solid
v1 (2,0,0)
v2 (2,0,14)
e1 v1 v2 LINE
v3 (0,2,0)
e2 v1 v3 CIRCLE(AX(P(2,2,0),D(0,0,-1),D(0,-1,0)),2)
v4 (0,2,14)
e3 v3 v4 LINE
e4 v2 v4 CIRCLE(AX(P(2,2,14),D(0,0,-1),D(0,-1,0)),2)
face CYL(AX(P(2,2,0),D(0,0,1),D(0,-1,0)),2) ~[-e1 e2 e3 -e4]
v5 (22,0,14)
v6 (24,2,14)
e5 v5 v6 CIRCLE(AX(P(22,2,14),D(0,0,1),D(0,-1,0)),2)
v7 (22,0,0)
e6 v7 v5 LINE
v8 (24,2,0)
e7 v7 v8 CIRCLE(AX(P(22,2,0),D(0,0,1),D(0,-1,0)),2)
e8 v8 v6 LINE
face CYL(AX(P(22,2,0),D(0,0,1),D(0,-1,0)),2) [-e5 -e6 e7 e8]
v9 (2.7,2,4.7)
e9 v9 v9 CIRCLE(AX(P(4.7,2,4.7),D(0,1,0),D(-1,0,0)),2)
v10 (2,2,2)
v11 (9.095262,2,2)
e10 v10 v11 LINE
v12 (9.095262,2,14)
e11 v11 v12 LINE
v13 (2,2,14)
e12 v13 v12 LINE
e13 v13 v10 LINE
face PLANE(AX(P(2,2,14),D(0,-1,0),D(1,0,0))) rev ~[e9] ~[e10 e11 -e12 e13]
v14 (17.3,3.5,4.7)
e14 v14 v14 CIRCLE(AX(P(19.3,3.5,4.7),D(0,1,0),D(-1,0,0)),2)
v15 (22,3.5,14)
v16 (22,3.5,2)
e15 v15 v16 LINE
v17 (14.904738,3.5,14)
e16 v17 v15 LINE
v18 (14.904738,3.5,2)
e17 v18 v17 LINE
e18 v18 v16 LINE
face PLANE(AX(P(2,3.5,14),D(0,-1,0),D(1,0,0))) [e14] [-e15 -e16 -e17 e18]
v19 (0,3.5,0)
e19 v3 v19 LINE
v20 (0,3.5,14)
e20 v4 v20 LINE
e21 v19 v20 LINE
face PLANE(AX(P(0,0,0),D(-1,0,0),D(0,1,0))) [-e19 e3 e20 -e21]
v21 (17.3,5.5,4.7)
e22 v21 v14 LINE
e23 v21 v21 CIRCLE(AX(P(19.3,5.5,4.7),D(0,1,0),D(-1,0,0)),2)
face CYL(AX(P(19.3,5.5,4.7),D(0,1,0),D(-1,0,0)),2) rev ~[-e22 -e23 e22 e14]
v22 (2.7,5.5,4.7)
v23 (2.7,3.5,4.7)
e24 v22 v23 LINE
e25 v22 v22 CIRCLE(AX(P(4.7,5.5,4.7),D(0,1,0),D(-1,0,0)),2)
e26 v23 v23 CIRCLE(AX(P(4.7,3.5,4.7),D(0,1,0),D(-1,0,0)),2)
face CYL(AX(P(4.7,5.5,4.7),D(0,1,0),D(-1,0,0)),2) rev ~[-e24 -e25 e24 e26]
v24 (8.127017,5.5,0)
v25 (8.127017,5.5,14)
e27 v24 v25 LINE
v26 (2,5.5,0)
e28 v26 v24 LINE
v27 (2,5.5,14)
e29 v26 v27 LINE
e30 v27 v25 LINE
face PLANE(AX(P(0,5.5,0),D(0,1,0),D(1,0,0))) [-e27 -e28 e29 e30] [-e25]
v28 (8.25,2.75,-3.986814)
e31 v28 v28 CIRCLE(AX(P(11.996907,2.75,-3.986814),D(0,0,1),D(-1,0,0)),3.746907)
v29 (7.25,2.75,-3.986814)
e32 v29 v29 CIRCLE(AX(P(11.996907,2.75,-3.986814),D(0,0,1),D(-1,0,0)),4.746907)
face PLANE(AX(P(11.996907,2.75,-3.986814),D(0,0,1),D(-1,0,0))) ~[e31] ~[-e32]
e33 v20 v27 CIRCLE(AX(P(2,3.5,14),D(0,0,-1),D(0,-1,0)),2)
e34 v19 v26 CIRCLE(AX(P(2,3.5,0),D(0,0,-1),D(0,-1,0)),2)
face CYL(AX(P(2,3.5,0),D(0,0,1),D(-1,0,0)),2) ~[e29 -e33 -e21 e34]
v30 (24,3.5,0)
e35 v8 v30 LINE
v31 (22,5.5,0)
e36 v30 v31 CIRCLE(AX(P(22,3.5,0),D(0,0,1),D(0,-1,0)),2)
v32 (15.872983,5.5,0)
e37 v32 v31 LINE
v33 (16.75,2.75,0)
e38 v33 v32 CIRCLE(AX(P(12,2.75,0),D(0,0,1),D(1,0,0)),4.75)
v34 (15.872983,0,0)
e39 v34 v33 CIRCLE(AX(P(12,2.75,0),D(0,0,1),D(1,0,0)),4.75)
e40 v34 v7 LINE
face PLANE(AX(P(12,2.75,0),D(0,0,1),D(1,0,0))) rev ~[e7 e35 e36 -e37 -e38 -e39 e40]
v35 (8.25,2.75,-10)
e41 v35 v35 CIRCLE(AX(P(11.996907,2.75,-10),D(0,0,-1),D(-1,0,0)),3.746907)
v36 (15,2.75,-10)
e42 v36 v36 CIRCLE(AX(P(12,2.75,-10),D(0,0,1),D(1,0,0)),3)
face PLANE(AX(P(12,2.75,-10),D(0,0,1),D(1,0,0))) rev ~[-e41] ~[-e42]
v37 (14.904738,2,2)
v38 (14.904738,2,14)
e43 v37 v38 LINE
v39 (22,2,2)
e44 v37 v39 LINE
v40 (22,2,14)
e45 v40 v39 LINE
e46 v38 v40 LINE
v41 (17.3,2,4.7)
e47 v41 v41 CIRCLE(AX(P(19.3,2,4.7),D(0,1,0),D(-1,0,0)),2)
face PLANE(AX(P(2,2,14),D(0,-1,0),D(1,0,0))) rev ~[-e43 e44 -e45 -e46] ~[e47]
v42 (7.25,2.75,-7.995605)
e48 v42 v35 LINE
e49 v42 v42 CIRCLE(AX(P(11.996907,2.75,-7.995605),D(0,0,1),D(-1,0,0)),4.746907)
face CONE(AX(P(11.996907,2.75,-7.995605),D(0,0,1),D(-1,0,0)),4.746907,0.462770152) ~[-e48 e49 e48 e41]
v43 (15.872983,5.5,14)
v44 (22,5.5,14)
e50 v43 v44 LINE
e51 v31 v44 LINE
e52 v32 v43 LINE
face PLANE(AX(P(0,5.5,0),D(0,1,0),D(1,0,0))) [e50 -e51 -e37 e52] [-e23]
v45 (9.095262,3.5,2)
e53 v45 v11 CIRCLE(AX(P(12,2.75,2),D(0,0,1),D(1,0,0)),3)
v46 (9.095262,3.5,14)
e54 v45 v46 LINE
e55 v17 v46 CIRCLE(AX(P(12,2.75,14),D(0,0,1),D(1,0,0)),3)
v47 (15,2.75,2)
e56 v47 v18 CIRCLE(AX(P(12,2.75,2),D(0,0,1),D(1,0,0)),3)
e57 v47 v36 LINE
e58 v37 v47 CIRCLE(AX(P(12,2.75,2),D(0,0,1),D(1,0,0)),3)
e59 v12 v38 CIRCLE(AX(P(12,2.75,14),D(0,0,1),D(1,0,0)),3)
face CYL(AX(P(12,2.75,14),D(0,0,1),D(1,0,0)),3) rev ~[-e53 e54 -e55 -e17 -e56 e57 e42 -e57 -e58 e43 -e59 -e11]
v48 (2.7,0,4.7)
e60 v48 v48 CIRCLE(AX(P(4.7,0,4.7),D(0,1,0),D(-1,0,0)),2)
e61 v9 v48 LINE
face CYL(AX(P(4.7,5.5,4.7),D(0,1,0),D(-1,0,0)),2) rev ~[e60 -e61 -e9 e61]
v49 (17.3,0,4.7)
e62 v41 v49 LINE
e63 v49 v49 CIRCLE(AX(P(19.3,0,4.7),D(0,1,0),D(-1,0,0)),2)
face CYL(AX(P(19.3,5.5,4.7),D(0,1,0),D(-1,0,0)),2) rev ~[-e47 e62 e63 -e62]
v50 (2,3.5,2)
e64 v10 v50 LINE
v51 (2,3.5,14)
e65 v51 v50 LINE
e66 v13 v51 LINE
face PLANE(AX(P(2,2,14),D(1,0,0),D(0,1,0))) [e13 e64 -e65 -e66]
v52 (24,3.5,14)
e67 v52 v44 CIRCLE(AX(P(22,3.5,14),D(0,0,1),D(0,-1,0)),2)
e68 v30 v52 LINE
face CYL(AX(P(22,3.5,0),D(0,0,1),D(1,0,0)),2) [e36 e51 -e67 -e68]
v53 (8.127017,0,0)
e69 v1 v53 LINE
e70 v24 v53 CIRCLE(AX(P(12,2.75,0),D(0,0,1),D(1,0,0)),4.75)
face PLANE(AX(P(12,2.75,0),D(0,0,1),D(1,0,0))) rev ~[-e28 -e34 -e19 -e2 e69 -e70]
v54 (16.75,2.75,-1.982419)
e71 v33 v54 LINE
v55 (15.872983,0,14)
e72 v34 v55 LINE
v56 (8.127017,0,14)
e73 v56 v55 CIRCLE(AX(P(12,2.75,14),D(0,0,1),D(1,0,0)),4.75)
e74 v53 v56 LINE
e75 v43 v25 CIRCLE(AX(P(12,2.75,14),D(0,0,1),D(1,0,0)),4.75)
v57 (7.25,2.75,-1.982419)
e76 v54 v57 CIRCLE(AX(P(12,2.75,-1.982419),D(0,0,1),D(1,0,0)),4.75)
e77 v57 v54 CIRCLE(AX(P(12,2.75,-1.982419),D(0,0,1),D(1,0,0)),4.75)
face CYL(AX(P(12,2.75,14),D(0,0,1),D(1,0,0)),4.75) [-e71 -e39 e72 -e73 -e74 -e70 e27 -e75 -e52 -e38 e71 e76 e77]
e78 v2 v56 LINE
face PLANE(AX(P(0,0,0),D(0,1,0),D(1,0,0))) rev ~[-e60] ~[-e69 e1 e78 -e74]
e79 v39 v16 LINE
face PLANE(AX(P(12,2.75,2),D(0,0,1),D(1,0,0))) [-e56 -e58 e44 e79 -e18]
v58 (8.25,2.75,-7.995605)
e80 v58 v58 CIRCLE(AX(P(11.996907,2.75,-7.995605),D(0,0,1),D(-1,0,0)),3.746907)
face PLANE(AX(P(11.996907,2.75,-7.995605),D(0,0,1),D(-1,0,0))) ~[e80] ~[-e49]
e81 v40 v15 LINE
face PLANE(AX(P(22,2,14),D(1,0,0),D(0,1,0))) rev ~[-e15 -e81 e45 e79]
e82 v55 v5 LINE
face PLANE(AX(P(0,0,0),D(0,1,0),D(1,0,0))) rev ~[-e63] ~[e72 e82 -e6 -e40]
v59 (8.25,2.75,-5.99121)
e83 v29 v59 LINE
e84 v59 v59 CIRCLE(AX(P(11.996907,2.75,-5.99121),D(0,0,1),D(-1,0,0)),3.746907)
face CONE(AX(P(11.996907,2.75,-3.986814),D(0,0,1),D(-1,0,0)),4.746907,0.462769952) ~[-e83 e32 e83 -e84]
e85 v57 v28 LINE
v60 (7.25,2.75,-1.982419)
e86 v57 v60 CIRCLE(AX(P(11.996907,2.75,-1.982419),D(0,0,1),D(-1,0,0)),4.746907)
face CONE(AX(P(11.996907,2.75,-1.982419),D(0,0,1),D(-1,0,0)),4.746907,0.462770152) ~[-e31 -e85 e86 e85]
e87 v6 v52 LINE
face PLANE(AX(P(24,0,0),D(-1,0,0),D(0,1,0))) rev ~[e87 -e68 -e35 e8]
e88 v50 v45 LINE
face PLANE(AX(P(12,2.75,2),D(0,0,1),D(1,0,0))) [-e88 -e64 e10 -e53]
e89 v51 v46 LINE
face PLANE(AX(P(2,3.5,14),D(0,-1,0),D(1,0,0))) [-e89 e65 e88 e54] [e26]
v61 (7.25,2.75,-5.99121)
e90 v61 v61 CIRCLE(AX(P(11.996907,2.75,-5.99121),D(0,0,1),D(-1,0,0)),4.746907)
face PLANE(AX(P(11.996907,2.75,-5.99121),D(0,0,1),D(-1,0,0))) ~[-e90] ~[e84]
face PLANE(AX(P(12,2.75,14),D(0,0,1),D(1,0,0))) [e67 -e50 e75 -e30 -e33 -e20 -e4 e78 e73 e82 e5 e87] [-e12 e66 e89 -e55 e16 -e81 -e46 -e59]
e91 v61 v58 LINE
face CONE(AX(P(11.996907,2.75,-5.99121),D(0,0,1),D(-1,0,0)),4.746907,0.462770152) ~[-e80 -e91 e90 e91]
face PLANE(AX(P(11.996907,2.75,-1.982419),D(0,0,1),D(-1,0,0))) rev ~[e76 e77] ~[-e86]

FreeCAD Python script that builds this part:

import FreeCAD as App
import Part
import Sketcher

V = App.Vector


def edges_at(feature, points):
    """Names of the edges that pass closest to the given points."""
    edges = feature.Shape.Edges
    near = lambda p: min(range(len(edges)), key=lambda i: edges[i].distToShape(Part.Vertex(*p))[0])
    return sorted({f"Edge{near(p) + 1}" for p in points})


def add_polygon(sketch, points):
    """Adds a closed chain of lines whose ends are joined by coincident constraints."""
    first, n = sketch.GeometryCount, len(points)
    for a, b in zip(points, points[1:] + points[:1]):
        sketch.addGeometry(Part.LineSegment(App.Vector(*a, 0), App.Vector(*b, 0)), False)
    for i in range(n):
        sketch.addConstraint(Sketcher.Constraint("Coincident", first + i, 2, first + (i + 1) % n, 1))

doc = App.newDocument("Part")
body = doc.addObject("PartDesign::Body", "Body")

# Sketch on XY plane
sketch1 = doc.addObject("Sketcher::SketchObject", "Sketch")
body.addObject(sketch1)
sketch1.AttachmentSupport = (doc.XY_Plane, [""])
sketch1.MapMode = "FlatFace"
add_polygon(sketch1, [(0, 6), (0, 0), (24, 0), (24, 6)])  # lines 0-3
sketch1.addConstraint(Sketcher.Constraint("Vertical", 0))
sketch1.addConstraint(Sketcher.Constraint("Horizontal", 1))
sketch1.addConstraint(Sketcher.Constraint("Vertical", 2))
sketch1.addConstraint(Sketcher.Constraint("Horizontal", 3))
sketch1.addConstraint(Sketcher.Constraint("Coincident", 0, 2, -1, 1))
sketch1.addConstraint(Sketcher.Constraint("DistanceX", 1, 1, 1, 2, 24.0))
sketch1.addConstraint(Sketcher.Constraint("DistanceY", 0, 2, 0, 1, 5.5))
pad1 = doc.addObject("PartDesign::Pad", "Pad")
body.addObject(pad1)
pad1.Profile = sketch1
pad1.Length = 14

# Sketch on XY plane
sketch2 = doc.addObject("Sketcher::SketchObject", "Sketch001")
body.addObject(sketch2)
sketch2.AttachmentSupport = (doc.XY_Plane, [""])
sketch2.MapMode = "FlatFace"
sketch2.AttachmentOffset = App.Placement(V(0, 0, 14), App.Rotation())
sketch2.addGeometry(Part.Circle(V(12, 2.8, 0), V(0, 0, 1), 4.8), False)
sketch2.addConstraint(Sketcher.Constraint("Diameter", 0, 9.5))
sketch2.addConstraint(Sketcher.Constraint("DistanceX", -1, 1, 0, 3, 12.0))
sketch2.addConstraint(Sketcher.Constraint("DistanceY", -1, 1, 0, 3, 2.75))
pad2 = doc.addObject("PartDesign::Pad", "Pad001")
body.addObject(pad2)
pad2.Profile = sketch2
pad2.Length = 24
pad2.Reversed = True

# Sketch on XY plane
sketch3 = doc.addObject("Sketcher::SketchObject", "Sketch002")
body.addObject(sketch3)
sketch3.AttachmentSupport = (doc.XY_Plane, [""])
sketch3.MapMode = "FlatFace"
sketch3.AttachmentOffset = App.Placement(V(0, 0, 14), App.Rotation())
sketch3.addGeometry(Part.Circle(V(12, 2.8, 0), V(0, 0, 1), 3), False)
sketch3.addConstraint(Sketcher.Constraint("Diameter", 0, 6.0))
sketch3.addConstraint(Sketcher.Constraint("DistanceX", -1, 1, 0, 3, 12.0))
sketch3.addConstraint(Sketcher.Constraint("DistanceY", -1, 1, 0, 3, 2.75))
pocket1 = doc.addObject("PartDesign::Pocket", "Pocket")
body.addObject(pocket1)
pocket1.Profile = sketch3
pocket1.Type = "ThroughAll"

# Sketch on XY plane
sketch4 = doc.addObject("Sketcher::SketchObject", "Sketch003")
body.addObject(sketch4)
sketch4.AttachmentSupport = (doc.XY_Plane, [""])
sketch4.MapMode = "FlatFace"
sketch4.AttachmentOffset = App.Placement(V(0, 0, 14), App.Rotation())
add_polygon(sketch4, [(2, 3.5), (2, 2), (22, 2), (22, 3.5)])  # lines 0-3
sketch4.addConstraint(Sketcher.Constraint("Vertical", 0))
sketch4.addConstraint(Sketcher.Constraint("Horizontal", 1))
sketch4.addConstraint(Sketcher.Constraint("Vertical", 2))
sketch4.addConstraint(Sketcher.Constraint("Horizontal", 3))
sketch4.addConstraint(Sketcher.Constraint("DistanceX", 1, 1, 1, 2, 20.0))
sketch4.addConstraint(Sketcher.Constraint("DistanceY", 0, 2, 0, 1, 1.5))
sketch4.addConstraint(Sketcher.Constraint("DistanceX", -1, 1, 0, 2, 2.0))
sketch4.addConstraint(Sketcher.Constraint("DistanceY", -1, 1, 0, 2, 2.0))
pocket2 = doc.addObject("PartDesign::Pocket", "Pocket001")
body.addObject(pocket2)
pocket2.Profile = sketch4
pocket2.Length = 12

# Sketch on XZ plane
sketch5 = doc.addObject("Sketcher::SketchObject", "Sketch004")
body.addObject(sketch5)
sketch5.AttachmentSupport = (doc.XZ_Plane, [""])
sketch5.MapMode = "FlatFace"
sketch5.AttachmentOffset = App.Placement(V(0, 0, -5.5), App.Rotation())
sketch5.addGeometry(Part.Circle(V(19.3, 4.7, 0), V(0, 0, 1), 2), False)
sketch5.addGeometry(Part.Circle(V(4.7, 4.7, 0), V(0, 0, 1), 2), False)
sketch5.addConstraint(Sketcher.Constraint("Equal", 0, 1))
sketch5.addConstraint(Sketcher.Constraint("Horizontal", 0, 3, 1, 3))
sketch5.addConstraint(Sketcher.Constraint("Diameter", 0, 4.0))
sketch5.addConstraint(Sketcher.Constraint("DistanceX", -1, 1, 0, 3, 19.3))
sketch5.addConstraint(Sketcher.Constraint("DistanceY", -1, 1, 0, 3, 4.7))
sketch5.addConstraint(Sketcher.Constraint("DistanceX", -1, 1, 1, 3, 4.7))
pocket3 = doc.addObject("PartDesign::Pocket", "Pocket002")
body.addObject(pocket3)
pocket3.Profile = sketch5
pocket3.Type = "ThroughAll"
pocket3.Reversed = True

# Sketch on XY plane
sketch6 = doc.addObject("Sketcher::SketchObject", "Sketch005")
body.addObject(sketch6)
sketch6.AttachmentSupport = (doc.XY_Plane, [""])
sketch6.MapMode = "FlatFace"
sketch6.AttachmentOffset = App.Placement(V(0, 0, -10), App.Rotation())
add_polygon(sketch6, [(7.2, 1.8), (7.2, 2.8), (12, 2.8), (12, 1.8)])  # lines 0-3
sketch6.addConstraint(Sketcher.Constraint("Vertical", 0))
sketch6.addConstraint(Sketcher.Constraint("Horizontal", 1))
sketch6.addConstraint(Sketcher.Constraint("Vertical", 2))
sketch6.addConstraint(Sketcher.Constraint("Horizontal", 3))
sketch6.addConstraint(Sketcher.Constraint("DistanceY", 0, 1, 0, 2, 1.0))
sketch6.addConstraint(Sketcher.Constraint("DistanceX", -1, 1, 1, 2, 12.0))
sketch6.addConstraint(Sketcher.Constraint("DistanceX", 1, 1, 1, 2, 4.75))
sketch6.addConstraint(Sketcher.Constraint("DistanceY", -1, 1, 0, 2, 2.75))
pad3 = doc.addObject("PartDesign::Pad", "Pad002")
body.addObject(pad3)
pad3.Profile = sketch6
pad3.Length = 1
pad3.Reversed = True

# Sketch on XZ plane
sketch7 = doc.addObject("Sketcher::SketchObject", "Sketch006")
body.addObject(sketch7)
sketch7.AttachmentSupport = (doc.XZ_Plane, [""])
sketch7.MapMode = "FlatFace"
sketch7.AttachmentOffset = App.Placement(V(0, 0, -2.75), App.Rotation())
add_polygon(sketch7, [(7.2, -2), (8.2, -4), (7.2, -4), (8.2, -6), (7.2, -6), (8.2, -8), (7.2, -8), (8.2, -10), (6.2, -10), (6.2, -2)])  # lines 0-9
sketch7.addGeometry(Part.LineSegment(V(12, -10, 0), V(12, -2, 0)), True)  # axis
sketch7.addConstraint(Sketcher.Constraint("Horizontal", 1))
sketch7.addConstraint(Sketcher.Constraint("Horizontal", 3))
sketch7.addConstraint(Sketcher.Constraint("Horizontal", 5))
sketch7.addConstraint(Sketcher.Constraint("Horizontal", 7))
sketch7.addConstraint(Sketcher.Constraint("Vertical", 8))
sketch7.addConstraint(Sketcher.Constraint("Horizontal", 9))
sketch7.addConstraint(Sketcher.Constraint("Vertical", 10))
sketch7.addConstraint(Sketcher.Constraint("Parallel", 0, 2))
sketch7.addConstraint(Sketcher.Constraint("Parallel", 2, 4))
sketch7.addConstraint(Sketcher.Constraint("Parallel", 4, 6))
sketch7.addConstraint(Sketcher.Constraint("Horizontal", 7, 2, 10, 1))
sketch7.addConstraint(Sketcher.Constraint("Horizontal", 9, 2, 10, 2))
sketch7.addConstraint(Sketcher.Constraint("Vertical", 0, 2, 2, 2))
sketch7.addConstraint(Sketcher.Constraint("Vertical", 1, 2, 3, 2))
sketch7.addConstraint(Sketcher.Constraint("Vertical", 2, 2, 4, 2))
sketch7.addConstraint(Sketcher.Constraint("Vertical", 3, 2, 5, 2))
sketch7.addConstraint(Sketcher.Constraint("Vertical", 4, 2, 6, 2))
sketch7.addConstraint(Sketcher.Constraint("Vertical", 5, 2, 9, 2))
sketch7.addConstraint(Sketcher.Constraint("Equal", 5, 9))
sketch7.addConstraint(Sketcher.Constraint("DistanceX", 1, 2, 1, 1, 1.0))
sketch7.addConstraint(Sketcher.Constraint("DistanceY", 6, 2, -1, 1, 10.0))
sketch7.addConstraint(Sketcher.Constraint("Distance", 0, 2.24))
sketch7.addConstraint(Sketcher.Constraint("DistanceX", -1, 1, 0, 2, 8.25))
sketch7.addConstraint(Sketcher.Constraint("DistanceX", -1, 1, 10, 1, 11.996907))
groove = doc.addObject("PartDesign::Groove", "Groove")
body.addObject(groove)
groove.Profile = sketch7
groove.ReferenceAxis = (sketch7, ["Axis0"])
groove.Angle = 360

# Sketch on XZ plane
sketch8 = doc.addObject("Sketcher::SketchObject", "Sketch007")
body.addObject(sketch8)
sketch8.AttachmentSupport = (doc.XZ_Plane, [""])
sketch8.MapMode = "FlatFace"
sketch8.AttachmentOffset = App.Placement(V(0, 0, -2.75), App.Rotation())
add_polygon(sketch8, [(12, -10), (12, -11), (7.2, -11), (7.2, -10)])  # lines 0-3
sketch8.addConstraint(Sketcher.Constraint("Vertical", 0))
sketch8.addConstraint(Sketcher.Constraint("Horizontal", 1))
sketch8.addConstraint(Sketcher.Constraint("Vertical", 2))
sketch8.addConstraint(Sketcher.Constraint("Horizontal", 3))
sketch8.addConstraint(Sketcher.Constraint("DistanceY", 0, 2, 0, 1, 1.0))
sketch8.addConstraint(Sketcher.Constraint("DistanceX", -1, 1, 0, 2, 12.0))
sketch8.addConstraint(Sketcher.Constraint("DistanceY", 0, 2, -1, 1, 11.0))
sketch8.addConstraint(Sketcher.Constraint("DistanceX", 1, 2, 1, 1, 4.75))
pocket4 = doc.addObject("PartDesign::Pocket", "Pocket003")
body.addObject(pocket4)
pocket4.Profile = sketch8
pocket4.Type = "ThroughAll"
pocket4.Reversed = True
doc.recompute()

fillet = doc.addObject("PartDesign::Fillet", "Fillet")
body.addObject(fillet)
fillet.Base = (pocket4, edges_at(pocket4, [
    (0, 5.5, 7),
    (0, 0, 7),
    (24, 5.5, 7),
    (24, 0, 7),
]))
fillet.Radius = 2

doc.recompute()
